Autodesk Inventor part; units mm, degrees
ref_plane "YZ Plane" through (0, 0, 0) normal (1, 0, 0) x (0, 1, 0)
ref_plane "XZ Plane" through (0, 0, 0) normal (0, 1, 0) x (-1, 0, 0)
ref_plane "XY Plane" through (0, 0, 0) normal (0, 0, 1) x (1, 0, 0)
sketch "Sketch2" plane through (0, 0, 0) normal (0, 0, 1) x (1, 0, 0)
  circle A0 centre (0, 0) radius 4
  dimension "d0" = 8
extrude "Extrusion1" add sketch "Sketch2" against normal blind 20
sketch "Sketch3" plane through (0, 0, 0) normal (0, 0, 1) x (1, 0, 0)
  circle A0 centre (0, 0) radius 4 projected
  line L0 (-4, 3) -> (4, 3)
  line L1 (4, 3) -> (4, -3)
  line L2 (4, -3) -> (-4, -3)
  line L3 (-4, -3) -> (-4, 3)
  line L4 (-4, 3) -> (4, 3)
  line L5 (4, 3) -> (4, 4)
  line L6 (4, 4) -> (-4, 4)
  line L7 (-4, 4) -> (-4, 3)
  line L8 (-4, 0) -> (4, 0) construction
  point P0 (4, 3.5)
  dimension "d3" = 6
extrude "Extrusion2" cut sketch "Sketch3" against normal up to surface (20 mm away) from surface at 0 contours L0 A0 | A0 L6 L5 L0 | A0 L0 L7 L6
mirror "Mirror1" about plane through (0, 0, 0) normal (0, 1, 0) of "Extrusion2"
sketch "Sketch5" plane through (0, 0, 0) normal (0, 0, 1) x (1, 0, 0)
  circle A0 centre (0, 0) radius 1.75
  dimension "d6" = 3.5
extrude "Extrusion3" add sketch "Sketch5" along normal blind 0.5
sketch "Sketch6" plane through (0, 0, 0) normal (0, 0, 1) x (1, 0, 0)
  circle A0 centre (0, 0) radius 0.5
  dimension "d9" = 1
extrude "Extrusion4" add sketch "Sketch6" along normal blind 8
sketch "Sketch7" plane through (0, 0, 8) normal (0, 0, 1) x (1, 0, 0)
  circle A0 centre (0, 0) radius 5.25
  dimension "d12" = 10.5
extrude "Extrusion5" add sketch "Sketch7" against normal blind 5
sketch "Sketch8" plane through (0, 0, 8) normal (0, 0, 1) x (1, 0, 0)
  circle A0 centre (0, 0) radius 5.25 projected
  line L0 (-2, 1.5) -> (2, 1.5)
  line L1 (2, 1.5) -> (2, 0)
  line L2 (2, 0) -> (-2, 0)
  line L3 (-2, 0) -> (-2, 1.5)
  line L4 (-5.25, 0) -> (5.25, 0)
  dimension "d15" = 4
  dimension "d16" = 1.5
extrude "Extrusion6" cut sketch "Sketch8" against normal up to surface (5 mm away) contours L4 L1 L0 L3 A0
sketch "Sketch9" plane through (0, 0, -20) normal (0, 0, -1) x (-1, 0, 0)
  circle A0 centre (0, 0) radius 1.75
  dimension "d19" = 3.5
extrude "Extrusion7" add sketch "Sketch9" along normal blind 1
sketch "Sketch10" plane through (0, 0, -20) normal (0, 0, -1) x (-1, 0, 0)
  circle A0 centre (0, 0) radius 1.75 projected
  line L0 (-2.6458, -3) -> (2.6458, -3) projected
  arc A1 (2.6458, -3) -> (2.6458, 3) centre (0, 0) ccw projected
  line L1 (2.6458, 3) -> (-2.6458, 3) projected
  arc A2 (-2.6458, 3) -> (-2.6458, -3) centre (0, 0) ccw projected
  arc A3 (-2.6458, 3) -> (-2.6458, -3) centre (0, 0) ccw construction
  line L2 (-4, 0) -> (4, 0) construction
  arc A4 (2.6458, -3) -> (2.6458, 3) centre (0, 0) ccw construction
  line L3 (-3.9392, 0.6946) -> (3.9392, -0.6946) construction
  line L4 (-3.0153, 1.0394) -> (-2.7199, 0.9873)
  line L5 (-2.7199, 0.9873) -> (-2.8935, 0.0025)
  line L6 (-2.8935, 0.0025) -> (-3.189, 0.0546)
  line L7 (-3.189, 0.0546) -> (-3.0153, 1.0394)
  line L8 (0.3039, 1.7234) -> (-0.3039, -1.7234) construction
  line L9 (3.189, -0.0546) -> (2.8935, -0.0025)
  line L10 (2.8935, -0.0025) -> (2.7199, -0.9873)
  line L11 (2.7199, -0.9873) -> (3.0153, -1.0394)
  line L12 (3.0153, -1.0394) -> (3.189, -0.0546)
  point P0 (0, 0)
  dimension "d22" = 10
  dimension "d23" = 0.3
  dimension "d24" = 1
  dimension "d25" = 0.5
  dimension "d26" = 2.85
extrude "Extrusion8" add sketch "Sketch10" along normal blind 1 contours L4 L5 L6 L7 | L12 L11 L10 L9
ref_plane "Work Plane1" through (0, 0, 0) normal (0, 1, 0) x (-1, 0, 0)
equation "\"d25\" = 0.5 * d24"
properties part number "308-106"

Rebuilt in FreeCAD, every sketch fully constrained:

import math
import FreeCAD as App
import Part
import Sketcher
from FreeCAD import Vector
Q = App.Units.Quantity

doc = App.newDocument("Part")
body = doc.addObject("PartDesign::Body", "Body")

# Sketch on XY plane
sketch1 = body.newObject("Sketcher::SketchObject", "Sketch")
sketch1.AttachmentSupport = (doc.getObject("XY_Plane"), [""])
sketch1.MapMode = "FlatFace"
sketch1.addGeometry(Part.Circle(Vector(0, 0, 0), Vector(0, 0, 1), 4), False)
sketch1.addConstraint([
    Sketcher.Constraint("Coincident", 0, 3, -1, 1),
    Sketcher.Constraint("Diameter", 0, Q("8 mm")),
])
pad1 = body.newObject("PartDesign::Pad", "Pad")
pad1.Profile = sketch1
pad1.Length = 20
pad1.Reversed = True

# Sketch on XY plane
sketch2 = body.newObject("Sketcher::SketchObject", "Sketch001")
sketch2.AttachmentSupport = (doc.getObject("XY_Plane"), [""])
sketch2.MapMode = "FlatFace"
sketch2.addGeometry([
    Part.LineSegment(Vector(4, 3, 0), Vector(4, 4, 0)),
    Part.LineSegment(Vector(4, 4, 0), Vector(-4, 4, 0)),
    Part.LineSegment(Vector(-4, 4, 0), Vector(-4, 3, 0)),
    Part.LineSegment(Vector(-4, 3, 0), Vector(4, 3, 0)),
], False)
sketch2.addConstraint([
    Sketcher.Constraint("Coincident", 0, 2, 1, 1),
    Sketcher.Constraint("Coincident", 1, 2, 2, 1),
    Sketcher.Constraint("Coincident", 2, 2, 3, 1),
    Sketcher.Constraint("Coincident", 3, 2, 0, 1),
    Sketcher.Constraint("Vertical", 0),
    Sketcher.Constraint("Horizontal", 1),
    Sketcher.Constraint("Vertical", 2),
    Sketcher.Constraint("Horizontal", 3),
    Sketcher.Constraint("DistanceX", 1, 2, 1, 1, Q("8 mm")),
    Sketcher.Constraint("DistanceY", 0, 1, 0, 2, Q("1 mm")),
    Sketcher.Constraint("DistanceX", -1, 1, 0, 2, Q("4 mm")),
    Sketcher.Constraint("DistanceY", -1, 1, 0, 2, Q("4 mm")),
])
pocket1 = body.newObject("PartDesign::Pocket", "Pocket")
pocket1.Profile = sketch2
pocket1.Length = 20
doc.recompute()

mirrored = body.newObject("PartDesign::Mirrored", "Mirrored")
mirrored.Originals = [pocket1]
mirrored.MirrorPlane = (doc.getObject("XZ_Plane"), [""])
body.Tip = mirrored

# Sketch on XY plane
sketch3 = body.newObject("Sketcher::SketchObject", "Sketch002")
sketch3.AttachmentSupport = (doc.getObject("XY_Plane"), [""])
sketch3.MapMode = "FlatFace"
sketch3.addGeometry(Part.Circle(Vector(0, 0, 0), Vector(0, 0, 1), 1.75), False)
sketch3.addConstraint([
    Sketcher.Constraint("Coincident", 0, 3, -1, 1),
    Sketcher.Constraint("Diameter", 0, Q("3.5 mm")),
])
pad2 = body.newObject("PartDesign::Pad", "Pad001")
pad2.Profile = sketch3
pad2.Length = 0.5

# Sketch on XY plane
sketch4 = body.newObject("Sketcher::SketchObject", "Sketch003")
sketch4.AttachmentSupport = (doc.getObject("XY_Plane"), [""])
sketch4.MapMode = "FlatFace"
sketch4.addGeometry(Part.Circle(Vector(0, 0, 0), Vector(0, 0, 1), 0.5), False)
sketch4.addConstraint([
    Sketcher.Constraint("Coincident", 0, 3, -1, 1),
    Sketcher.Constraint("Diameter", 0, Q("1 mm")),
])
pad3 = body.newObject("PartDesign::Pad", "Pad002")
pad3.Profile = sketch4
pad3.Length = 8

# Sketch on XY plane
sketch5 = body.newObject("Sketcher::SketchObject", "Sketch004")
sketch5.AttachmentSupport = (doc.getObject("XY_Plane"), [""])
sketch5.MapMode = "FlatFace"
sketch5.AttachmentOffset = App.Placement(Vector(0, 0, 8), App.Rotation())
sketch5.addGeometry(Part.Circle(Vector(0, 0, 0), Vector(0, 0, 1), 5.25), False)
sketch5.addConstraint([
    Sketcher.Constraint("Coincident", 0, 3, -1, 1),
    Sketcher.Constraint("Diameter", 0, Q("10.5 mm")),
])
pad4 = body.newObject("PartDesign::Pad", "Pad003")
pad4.Profile = sketch5
pad4.Length = 5
pad4.Reversed = True

# Sketch on XY plane
sketch6 = body.newObject("Sketcher::SketchObject", "Sketch005")
sketch6.AttachmentSupport = (doc.getObject("XY_Plane"), [""])
sketch6.MapMode = "FlatFace"
sketch6.AttachmentOffset = App.Placement(Vector(0, 0, 8), App.Rotation())
sketch6.addGeometry([
    Part.LineSegment(Vector(2, 0, 0), Vector(5.25, 0, 0)),  # 0
    Part.ArcOfCircle(Part.Circle(Vector(0, 0, 0), Vector(0, 0, 1), 5.25), math.radians(0), math.radians(180)),  # 1
    Part.LineSegment(Vector(-5.25, 0, 0), Vector(-2, 0, 0)),  # 2
    Part.LineSegment(Vector(-2, 0, 0), Vector(-2, 1.5, 0)),  # 3
    Part.LineSegment(Vector(-2, 1.5, 0), Vector(2, 1.5, 0)),  # 4
    Part.LineSegment(Vector(2, 1.5, 0), Vector(2, 0, 0)),  # 5
], False)
sketch6.addConstraint([
    Sketcher.Constraint("Coincident", 0, 2, 1, 1),
    Sketcher.Constraint("Coincident", 1, 2, 2, 1),
    Sketcher.Constraint("Coincident", 2, 2, 3, 1),
    Sketcher.Constraint("Coincident", 3, 2, 4, 1),
    Sketcher.Constraint("Coincident", 4, 2, 5, 1),
    Sketcher.Constraint("Coincident", 5, 2, 0, 1),
    Sketcher.Constraint("Horizontal", 0),
    Sketcher.Constraint("Horizontal", 2),
    Sketcher.Constraint("Vertical", 3),
    Sketcher.Constraint("Horizontal", 4),
    Sketcher.Constraint("Vertical", 5),
    Sketcher.Constraint("Coincident", 1, 3, -1, 1),
    Sketcher.Constraint("Symmetric", 2, 2, 5, 2, -1, 1),
    Sketcher.Constraint("PointOnObject", 0, 2, -1),
    Sketcher.Constraint("DistanceX", 4, 1, 4, 2, Q("4 mm")),
    Sketcher.Constraint("DistanceY", 3, 1, 3, 2, Q("1.5 mm")),
    Sketcher.Constraint("Radius", 1, Q("5.25 mm")),
])
pocket2 = body.newObject("PartDesign::Pocket", "Pocket001")
pocket2.Profile = sketch6
pocket2.Length = 5

# Sketch on XY plane
sketch7 = body.newObject("Sketcher::SketchObject", "Sketch006")
sketch7.AttachmentSupport = (doc.getObject("XY_Plane"), [""])
sketch7.MapMode = "FlatFace"
sketch7.AttachmentOffset = App.Placement(Vector(0, 0, -20), App.Rotation())
sketch7.addGeometry(Part.Circle(Vector(0, 0, 0), Vector(0, 0, 1), 1.75), False)
sketch7.addConstraint([
    Sketcher.Constraint("Coincident", 0, 3, -1, 1),
    Sketcher.Constraint("Diameter", 0, Q("3.5 mm")),
])
pad5 = body.newObject("PartDesign::Pad", "Pad004")
pad5.Profile = sketch7
pad5.Length = 1
pad5.Reversed = True

# Sketch on XY plane
sketch8 = body.newObject("Sketcher::SketchObject", "Sketch007")
sketch8.AttachmentSupport = (doc.getObject("XY_Plane"), [""])
sketch8.MapMode = "FlatFace"
sketch8.AttachmentOffset = App.Placement(Vector(0, 0, -20), App.Rotation())
sketch8.addGeometry([
    Part.LineSegment(Vector(2.7199, 0.9873, 0), Vector(3.0153, 1.0394, 0)),  # 0
    Part.LineSegment(Vector(3.0153, 1.0394, 0), Vector(3.189, 0.0546, 0)),  # 1
    Part.LineSegment(Vector(3.189, 0.0546, 0), Vector(2.8935, 0.0025, 0)),  # 2
    Part.LineSegment(Vector(2.8935, 0.0025, 0), Vector(2.7199, 0.9873, 0)),  # 3
    Part.LineSegment(Vector(-3.0153, -1.0394, 0), Vector(-3.189, -0.0546, 0)),  # 4
    Part.LineSegment(Vector(-3.189, -0.0546, 0), Vector(-2.8935, -0.0025, 0)),  # 5
    Part.LineSegment(Vector(-2.8935, -0.0025, 0), Vector(-2.7199, -0.9873, 0)),  # 6
    Part.LineSegment(Vector(-2.7199, -0.9873, 0), Vector(-3.0153, -1.0394, 0)),  # 7
], False)
sketch8.addConstraint([
    Sketcher.Constraint("Coincident", 0, 2, 1, 1),
    Sketcher.Constraint("Coincident", 1, 2, 2, 1),
    Sketcher.Constraint("Coincident", 2, 2, 3, 1),
    Sketcher.Constraint("Coincident", 3, 2, 0, 1),
    Sketcher.Constraint("Coincident", 4, 2, 5, 1),
    Sketcher.Constraint("Coincident", 5, 2, 6, 1),
    Sketcher.Constraint("Coincident", 6, 2, 7, 1),
    Sketcher.Constraint("Coincident", 7, 2, 4, 1),
    Sketcher.Constraint("Symmetric", 1, 2, 4, 2, -1, 1),
    Sketcher.Constraint("Symmetric", 2, 2, 5, 2, -1, 1),
    Sketcher.Constraint("Symmetric", 3, 2, 6, 2, -1, 1),
    Sketcher.Constraint("Symmetric", 0, 2, 7, 2, -1, 1),
    Sketcher.Constraint("Perpendicular", 0, 1),
    Sketcher.Constraint("Perpendicular", 1, 2),
    Sketcher.Constraint("Perpendicular", 2, 3),
    Sketcher.Constraint("Distance", 1, Q("1 mm")),
    Sketcher.Constraint("Distance", 0, Q("0.3 mm")),
    Sketcher.Constraint("Angle", 2, Q("-170.0009 deg")),
    Sketcher.Constraint("DistanceX", -1, 1, 3, 2, Q("2.72 mm")),
    Sketcher.Constraint("DistanceY", 4, 2, 3, 2, Q("1.042 mm")),
])
pad6 = body.newObject("PartDesign::Pad", "Pad005")
pad6.Profile = sketch8
pad6.Length = 1
pad6.Reversed = True

doc.recompute()
